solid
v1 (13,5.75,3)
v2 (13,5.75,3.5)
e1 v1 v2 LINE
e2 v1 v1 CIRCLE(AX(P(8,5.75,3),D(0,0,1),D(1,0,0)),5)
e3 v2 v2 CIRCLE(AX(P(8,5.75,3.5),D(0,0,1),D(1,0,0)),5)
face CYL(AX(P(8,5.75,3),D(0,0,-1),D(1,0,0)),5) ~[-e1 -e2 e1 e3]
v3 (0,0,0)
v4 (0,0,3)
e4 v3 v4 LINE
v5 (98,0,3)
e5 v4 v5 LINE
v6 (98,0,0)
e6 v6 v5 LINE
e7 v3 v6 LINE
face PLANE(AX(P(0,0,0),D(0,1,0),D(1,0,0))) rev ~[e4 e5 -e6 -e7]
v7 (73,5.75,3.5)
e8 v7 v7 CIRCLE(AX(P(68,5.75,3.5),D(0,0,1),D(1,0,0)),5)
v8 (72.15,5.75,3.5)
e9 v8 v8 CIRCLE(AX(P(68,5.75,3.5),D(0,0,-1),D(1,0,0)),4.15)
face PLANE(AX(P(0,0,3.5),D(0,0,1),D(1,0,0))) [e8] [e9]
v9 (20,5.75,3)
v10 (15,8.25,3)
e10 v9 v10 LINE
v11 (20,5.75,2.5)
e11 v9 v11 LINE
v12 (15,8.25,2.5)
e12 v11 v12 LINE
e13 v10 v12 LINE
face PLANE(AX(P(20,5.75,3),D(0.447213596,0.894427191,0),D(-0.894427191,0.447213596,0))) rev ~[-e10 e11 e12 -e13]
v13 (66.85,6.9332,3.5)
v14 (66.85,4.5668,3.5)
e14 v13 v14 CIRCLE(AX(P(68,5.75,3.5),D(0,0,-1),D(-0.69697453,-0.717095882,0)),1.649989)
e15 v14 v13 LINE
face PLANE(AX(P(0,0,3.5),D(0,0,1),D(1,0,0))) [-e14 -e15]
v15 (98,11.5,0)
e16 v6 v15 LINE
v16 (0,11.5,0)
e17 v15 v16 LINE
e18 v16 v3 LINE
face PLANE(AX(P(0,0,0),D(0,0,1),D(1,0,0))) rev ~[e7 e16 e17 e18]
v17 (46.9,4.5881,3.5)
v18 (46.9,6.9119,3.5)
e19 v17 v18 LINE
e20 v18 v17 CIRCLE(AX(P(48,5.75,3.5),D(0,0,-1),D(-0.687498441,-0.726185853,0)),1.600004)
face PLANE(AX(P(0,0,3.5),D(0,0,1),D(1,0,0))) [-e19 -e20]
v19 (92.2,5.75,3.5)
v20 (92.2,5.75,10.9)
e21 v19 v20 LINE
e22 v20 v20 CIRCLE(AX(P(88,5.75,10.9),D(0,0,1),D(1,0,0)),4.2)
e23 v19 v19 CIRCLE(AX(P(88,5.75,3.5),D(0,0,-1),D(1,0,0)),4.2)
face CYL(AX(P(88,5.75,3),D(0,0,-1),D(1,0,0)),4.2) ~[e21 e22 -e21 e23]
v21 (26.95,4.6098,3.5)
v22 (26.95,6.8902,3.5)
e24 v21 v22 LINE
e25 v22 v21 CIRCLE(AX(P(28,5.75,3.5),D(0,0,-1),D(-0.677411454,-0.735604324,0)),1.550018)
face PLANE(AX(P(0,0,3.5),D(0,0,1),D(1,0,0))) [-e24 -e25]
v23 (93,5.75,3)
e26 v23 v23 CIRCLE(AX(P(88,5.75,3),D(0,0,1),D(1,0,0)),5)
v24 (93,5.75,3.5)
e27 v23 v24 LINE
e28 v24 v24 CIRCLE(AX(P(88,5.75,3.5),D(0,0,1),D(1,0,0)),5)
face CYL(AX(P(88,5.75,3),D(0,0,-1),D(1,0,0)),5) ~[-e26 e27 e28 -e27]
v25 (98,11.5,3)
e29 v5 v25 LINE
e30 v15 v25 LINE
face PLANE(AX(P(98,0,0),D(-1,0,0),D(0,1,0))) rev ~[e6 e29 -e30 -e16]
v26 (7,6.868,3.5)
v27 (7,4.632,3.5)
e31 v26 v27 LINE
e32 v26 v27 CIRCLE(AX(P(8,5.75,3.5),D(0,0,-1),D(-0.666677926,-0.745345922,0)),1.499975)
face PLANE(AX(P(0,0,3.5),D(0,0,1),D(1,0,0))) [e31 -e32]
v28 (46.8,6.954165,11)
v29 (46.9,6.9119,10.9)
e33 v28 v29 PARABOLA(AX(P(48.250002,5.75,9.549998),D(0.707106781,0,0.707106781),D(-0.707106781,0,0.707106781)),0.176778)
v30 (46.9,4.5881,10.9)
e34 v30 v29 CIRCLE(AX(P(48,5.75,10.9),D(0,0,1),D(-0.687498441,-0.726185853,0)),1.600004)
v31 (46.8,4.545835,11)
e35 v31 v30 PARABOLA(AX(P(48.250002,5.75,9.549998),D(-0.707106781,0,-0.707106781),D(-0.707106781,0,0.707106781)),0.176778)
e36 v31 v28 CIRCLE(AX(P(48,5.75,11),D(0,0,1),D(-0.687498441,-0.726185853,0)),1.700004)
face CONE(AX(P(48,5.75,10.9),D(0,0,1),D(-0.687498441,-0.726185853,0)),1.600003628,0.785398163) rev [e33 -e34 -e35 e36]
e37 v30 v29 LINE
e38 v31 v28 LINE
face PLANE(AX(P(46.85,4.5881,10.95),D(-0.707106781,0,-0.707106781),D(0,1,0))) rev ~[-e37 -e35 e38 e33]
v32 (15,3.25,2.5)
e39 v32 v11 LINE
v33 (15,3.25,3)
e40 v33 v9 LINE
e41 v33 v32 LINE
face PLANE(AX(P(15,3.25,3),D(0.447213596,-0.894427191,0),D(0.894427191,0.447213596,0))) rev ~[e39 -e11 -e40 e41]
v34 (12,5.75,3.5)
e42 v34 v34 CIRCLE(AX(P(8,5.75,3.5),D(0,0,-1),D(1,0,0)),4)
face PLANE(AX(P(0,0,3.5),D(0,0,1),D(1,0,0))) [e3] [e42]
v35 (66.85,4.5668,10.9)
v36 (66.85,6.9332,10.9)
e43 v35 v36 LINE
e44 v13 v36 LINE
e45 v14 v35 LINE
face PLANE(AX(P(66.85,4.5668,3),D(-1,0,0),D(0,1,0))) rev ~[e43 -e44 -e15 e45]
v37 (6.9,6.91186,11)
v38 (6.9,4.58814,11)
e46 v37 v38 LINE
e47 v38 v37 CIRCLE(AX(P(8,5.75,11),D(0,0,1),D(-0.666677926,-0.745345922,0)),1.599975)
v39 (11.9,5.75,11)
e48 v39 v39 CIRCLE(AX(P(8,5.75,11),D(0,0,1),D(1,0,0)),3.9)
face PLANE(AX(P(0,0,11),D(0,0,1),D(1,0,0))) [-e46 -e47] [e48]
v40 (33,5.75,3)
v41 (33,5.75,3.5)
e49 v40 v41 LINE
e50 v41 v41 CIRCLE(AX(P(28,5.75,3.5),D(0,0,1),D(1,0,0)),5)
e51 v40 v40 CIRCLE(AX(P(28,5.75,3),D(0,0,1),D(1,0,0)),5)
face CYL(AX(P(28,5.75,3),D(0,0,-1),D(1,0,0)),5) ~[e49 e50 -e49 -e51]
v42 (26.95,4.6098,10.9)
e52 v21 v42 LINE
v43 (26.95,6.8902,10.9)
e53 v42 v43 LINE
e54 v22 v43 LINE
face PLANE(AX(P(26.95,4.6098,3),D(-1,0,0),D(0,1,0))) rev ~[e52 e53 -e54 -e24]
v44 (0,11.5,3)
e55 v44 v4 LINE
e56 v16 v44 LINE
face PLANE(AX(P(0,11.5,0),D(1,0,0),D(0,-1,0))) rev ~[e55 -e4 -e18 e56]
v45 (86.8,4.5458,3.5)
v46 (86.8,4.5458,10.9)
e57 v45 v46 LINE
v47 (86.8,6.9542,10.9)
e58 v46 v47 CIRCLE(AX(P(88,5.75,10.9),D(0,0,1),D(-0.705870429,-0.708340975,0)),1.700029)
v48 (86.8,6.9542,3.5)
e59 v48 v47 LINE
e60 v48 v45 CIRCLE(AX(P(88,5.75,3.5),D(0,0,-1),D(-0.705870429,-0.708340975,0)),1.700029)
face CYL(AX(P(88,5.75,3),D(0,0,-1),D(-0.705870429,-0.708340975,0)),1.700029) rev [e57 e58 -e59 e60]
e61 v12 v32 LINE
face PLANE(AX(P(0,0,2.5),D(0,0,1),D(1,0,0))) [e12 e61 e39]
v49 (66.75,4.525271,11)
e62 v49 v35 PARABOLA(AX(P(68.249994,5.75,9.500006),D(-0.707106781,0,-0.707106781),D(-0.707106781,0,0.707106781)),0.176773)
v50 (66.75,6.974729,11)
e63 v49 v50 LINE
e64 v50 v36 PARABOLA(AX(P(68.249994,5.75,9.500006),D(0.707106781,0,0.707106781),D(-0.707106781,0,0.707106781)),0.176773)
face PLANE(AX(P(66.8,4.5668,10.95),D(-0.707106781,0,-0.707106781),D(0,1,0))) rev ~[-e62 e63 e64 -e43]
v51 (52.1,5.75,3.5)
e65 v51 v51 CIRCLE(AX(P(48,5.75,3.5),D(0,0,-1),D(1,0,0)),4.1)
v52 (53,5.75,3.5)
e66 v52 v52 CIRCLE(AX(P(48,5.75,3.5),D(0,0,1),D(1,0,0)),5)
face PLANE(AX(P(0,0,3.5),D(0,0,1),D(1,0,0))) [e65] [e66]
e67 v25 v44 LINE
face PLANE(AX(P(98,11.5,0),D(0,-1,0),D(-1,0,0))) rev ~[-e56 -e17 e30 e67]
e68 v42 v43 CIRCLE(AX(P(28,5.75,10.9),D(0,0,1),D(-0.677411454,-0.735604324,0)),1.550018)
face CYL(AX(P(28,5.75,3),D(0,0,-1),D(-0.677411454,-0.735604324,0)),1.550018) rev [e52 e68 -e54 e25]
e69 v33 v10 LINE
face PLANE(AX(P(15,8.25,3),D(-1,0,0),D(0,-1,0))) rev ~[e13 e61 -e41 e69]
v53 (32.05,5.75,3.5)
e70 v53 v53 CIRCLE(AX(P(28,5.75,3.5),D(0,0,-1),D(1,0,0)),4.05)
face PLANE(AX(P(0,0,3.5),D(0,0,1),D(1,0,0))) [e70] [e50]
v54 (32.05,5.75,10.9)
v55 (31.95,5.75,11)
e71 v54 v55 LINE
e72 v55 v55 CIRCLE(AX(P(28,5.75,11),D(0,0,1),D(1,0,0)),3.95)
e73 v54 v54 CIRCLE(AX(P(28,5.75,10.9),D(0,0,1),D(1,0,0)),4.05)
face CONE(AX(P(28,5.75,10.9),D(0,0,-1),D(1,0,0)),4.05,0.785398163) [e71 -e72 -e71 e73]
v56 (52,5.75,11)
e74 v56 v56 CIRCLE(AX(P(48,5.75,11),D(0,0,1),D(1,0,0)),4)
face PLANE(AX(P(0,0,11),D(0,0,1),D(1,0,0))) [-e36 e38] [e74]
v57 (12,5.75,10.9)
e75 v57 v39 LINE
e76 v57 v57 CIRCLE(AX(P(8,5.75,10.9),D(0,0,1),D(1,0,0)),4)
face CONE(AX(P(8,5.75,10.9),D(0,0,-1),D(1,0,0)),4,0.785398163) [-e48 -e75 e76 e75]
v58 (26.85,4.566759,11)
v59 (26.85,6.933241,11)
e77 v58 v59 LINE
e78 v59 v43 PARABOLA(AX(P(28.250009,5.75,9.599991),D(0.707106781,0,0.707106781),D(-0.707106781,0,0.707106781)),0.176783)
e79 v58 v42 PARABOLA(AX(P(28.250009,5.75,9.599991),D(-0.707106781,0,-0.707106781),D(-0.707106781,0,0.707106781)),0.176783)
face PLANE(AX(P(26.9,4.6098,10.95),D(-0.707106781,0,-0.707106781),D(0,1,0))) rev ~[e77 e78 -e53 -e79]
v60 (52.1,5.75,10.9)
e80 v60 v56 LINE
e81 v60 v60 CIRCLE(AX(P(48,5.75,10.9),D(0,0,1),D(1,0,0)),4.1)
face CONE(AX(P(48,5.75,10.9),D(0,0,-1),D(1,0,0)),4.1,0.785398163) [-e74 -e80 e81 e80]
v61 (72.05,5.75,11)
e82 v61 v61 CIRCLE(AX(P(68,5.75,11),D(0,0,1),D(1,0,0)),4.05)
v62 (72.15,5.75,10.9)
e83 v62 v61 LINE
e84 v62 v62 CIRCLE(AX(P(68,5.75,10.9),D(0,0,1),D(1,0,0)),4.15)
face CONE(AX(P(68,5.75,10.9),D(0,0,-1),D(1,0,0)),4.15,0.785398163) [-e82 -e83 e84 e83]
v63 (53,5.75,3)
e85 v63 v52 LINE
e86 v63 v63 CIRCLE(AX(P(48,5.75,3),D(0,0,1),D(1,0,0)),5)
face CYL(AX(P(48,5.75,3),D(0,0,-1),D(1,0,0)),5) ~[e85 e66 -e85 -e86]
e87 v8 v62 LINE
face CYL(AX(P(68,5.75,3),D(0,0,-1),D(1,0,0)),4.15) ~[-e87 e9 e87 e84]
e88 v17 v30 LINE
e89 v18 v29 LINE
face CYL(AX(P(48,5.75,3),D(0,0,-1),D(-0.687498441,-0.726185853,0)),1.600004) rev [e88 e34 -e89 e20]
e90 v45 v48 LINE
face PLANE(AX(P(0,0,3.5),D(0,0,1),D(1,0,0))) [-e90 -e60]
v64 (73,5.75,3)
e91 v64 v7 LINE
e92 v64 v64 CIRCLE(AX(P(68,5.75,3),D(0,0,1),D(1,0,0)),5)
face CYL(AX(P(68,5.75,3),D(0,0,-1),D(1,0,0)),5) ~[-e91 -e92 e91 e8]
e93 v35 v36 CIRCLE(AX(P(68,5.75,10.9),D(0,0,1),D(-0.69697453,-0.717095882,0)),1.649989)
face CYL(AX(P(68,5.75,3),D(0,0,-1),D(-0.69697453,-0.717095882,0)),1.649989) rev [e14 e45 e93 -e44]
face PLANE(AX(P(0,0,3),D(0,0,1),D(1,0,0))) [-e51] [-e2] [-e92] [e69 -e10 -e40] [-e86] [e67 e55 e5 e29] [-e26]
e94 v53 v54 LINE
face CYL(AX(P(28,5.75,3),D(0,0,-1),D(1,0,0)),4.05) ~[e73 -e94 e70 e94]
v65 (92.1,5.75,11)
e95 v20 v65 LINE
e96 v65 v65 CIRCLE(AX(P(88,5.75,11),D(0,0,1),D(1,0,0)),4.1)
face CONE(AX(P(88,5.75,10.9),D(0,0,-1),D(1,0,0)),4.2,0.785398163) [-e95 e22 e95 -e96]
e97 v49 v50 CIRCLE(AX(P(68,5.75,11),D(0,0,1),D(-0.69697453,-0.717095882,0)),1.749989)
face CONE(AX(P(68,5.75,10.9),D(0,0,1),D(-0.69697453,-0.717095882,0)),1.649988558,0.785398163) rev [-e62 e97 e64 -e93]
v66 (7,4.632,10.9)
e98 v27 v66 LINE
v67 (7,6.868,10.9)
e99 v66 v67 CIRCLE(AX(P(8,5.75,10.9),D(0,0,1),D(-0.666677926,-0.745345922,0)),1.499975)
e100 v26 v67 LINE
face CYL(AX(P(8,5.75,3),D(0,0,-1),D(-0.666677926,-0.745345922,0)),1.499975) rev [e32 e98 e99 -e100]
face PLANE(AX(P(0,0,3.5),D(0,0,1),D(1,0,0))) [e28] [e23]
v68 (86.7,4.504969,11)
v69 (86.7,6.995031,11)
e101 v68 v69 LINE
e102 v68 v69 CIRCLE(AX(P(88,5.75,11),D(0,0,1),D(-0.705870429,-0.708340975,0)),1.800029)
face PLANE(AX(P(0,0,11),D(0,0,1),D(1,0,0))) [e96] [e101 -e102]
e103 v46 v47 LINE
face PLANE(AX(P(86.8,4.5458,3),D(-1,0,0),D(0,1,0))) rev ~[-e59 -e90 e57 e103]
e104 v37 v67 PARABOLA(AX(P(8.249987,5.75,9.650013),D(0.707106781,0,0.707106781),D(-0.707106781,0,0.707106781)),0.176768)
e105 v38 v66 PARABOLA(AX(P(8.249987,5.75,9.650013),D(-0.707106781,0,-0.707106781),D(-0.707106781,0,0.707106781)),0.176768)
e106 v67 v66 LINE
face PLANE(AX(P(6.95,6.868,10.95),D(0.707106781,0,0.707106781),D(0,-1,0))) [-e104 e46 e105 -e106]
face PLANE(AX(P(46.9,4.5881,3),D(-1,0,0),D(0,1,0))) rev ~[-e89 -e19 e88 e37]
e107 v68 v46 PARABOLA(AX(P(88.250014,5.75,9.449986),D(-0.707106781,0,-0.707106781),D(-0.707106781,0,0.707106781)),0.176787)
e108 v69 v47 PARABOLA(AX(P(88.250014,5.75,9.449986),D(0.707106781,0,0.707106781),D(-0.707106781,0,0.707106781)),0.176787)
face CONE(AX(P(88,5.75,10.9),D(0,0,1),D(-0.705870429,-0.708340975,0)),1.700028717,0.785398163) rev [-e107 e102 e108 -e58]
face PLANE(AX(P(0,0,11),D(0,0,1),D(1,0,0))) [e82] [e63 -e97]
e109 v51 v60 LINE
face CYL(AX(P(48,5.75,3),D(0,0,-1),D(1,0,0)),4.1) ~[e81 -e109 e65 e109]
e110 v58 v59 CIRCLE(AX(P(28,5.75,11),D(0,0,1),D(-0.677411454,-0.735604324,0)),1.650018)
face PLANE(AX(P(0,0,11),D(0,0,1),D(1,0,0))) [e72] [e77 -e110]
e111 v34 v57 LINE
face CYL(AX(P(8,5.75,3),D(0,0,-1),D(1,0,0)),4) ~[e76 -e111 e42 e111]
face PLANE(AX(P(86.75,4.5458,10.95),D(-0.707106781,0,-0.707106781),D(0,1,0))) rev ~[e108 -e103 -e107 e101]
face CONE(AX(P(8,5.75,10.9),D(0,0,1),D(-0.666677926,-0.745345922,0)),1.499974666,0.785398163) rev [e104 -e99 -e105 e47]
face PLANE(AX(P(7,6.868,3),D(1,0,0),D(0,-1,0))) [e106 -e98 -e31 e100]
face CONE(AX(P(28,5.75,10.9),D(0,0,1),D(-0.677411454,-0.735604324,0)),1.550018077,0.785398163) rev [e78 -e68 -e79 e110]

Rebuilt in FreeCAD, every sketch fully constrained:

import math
import FreeCAD as App
import Part
import Sketcher
from FreeCAD import Vector


def edges_at(feature, points):
    """Names of the edges that pass closest to the given points."""
    edges = feature.Shape.Edges
    near = lambda p: min(range(len(edges)), key=lambda i: edges[i].distToShape(Part.Vertex(*p))[0])
    return sorted({f"Edge{near(p) + 1}" for p in points})


def add_polygon(sketch, points):
    """Adds a closed chain of lines whose ends are joined by coincident constraints."""
    first, n = sketch.GeometryCount, len(points)
    for a, b in zip(points, points[1:] + points[:1]):
        sketch.addGeometry(Part.LineSegment(App.Vector(*a, 0), App.Vector(*b, 0)), False)
    for i in range(n):
        sketch.addConstraint(Sketcher.Constraint("Coincident", first + i, 2, first + (i + 1) % n, 1))

doc = App.newDocument("Part")
body = doc.addObject("PartDesign::Body", "Body")

sketch1 = doc.addObject("Sketcher::SketchObject", "Sketch")
body.addObject(sketch1)
sketch1.AttachmentSupport = (doc.XY_Plane, [""])
sketch1.MapMode = "FlatFace"
add_polygon(sketch1, [(0, 12), (0, 0), (98, 0), (98, 12)])
sketch1.addConstraint([
    Sketcher.Constraint("Vertical", 0),
    Sketcher.Constraint("Horizontal", 1),
    Sketcher.Constraint("Vertical", 2),
    Sketcher.Constraint("Horizontal", 3),
    Sketcher.Constraint("Coincident", 0, 2, -1, 1),
    Sketcher.Constraint("DistanceX", 1, 1, 1, 2, 98.0),
    Sketcher.Constraint("DistanceY", 0, 2, 0, 1, 11.5),
])
pad1 = doc.addObject("PartDesign::Pad", "Pad")
body.addObject(pad1)
pad1.Profile = sketch1
pad1.Length = 3

sketch2 = doc.addObject("Sketcher::SketchObject", "Sketch001")
body.addObject(sketch2)
sketch2.AttachmentSupport = (doc.XY_Plane, [""])
sketch2.MapMode = "FlatFace"
sketch2.AttachmentOffset = App.Placement(Vector(0, 0, 3), App.Rotation())
sketch2.addGeometry([
    Part.Circle(Vector(8, 5.8, 0), Vector(0, 0, 1), 4),
    Part.ArcOfCircle(Part.Circle(Vector(8, 5.8, 0), Vector(0, 0, 1), 1.5), math.radians(-132), math.radians(132)),
    Part.LineSegment(Vector(7, 4.6, 0), Vector(7, 6.9, 0)),
    Part.Circle(Vector(28, 5.8, 0), Vector(0, 0, 1), 4),
    Part.ArcOfCircle(Part.Circle(Vector(28, 5.8, 0), Vector(0, 0, 1), 1.6), math.radians(-133), math.radians(133)),
    Part.LineSegment(Vector(26.9, 4.6, 0), Vector(26.9, 6.9, 0)),
    Part.Circle(Vector(48, 5.8, 0), Vector(0, 0, 1), 4.1),
    Part.ArcOfCircle(Part.Circle(Vector(48, 5.8, 0), Vector(0, 0, 1), 1.6), math.radians(-133), math.radians(133)),
    Part.LineSegment(Vector(46.9, 4.6, 0), Vector(46.9, 6.9, 0)),
    Part.Circle(Vector(68, 5.8, 0), Vector(0, 0, 1), 4.2),
    Part.ArcOfCircle(Part.Circle(Vector(68, 5.8, 0), Vector(0, 0, 1), 1.6), math.radians(-134), math.radians(134)),
    Part.LineSegment(Vector(66.8, 4.6, 0), Vector(66.8, 6.9, 0)),
    Part.Circle(Vector(88, 5.8, 0), Vector(0, 0, 1), 4.2),
    Part.ArcOfCircle(Part.Circle(Vector(88, 5.8, 0), Vector(0, 0, 1), 1.7), math.radians(-135), math.radians(135)),
    Part.LineSegment(Vector(86.8, 4.5, 0), Vector(86.8, 7, 0)),
], False)
sketch2.addConstraint([
    Sketcher.Constraint("Coincident", 1, 1, 2, 1),
    Sketcher.Constraint("Coincident", 2, 2, 1, 2),
    Sketcher.Constraint("Coincident", 4, 1, 5, 1),
    Sketcher.Constraint("Coincident", 5, 2, 4, 2),
    Sketcher.Constraint("Coincident", 7, 1, 8, 1),
    Sketcher.Constraint("Coincident", 8, 2, 7, 2),
    Sketcher.Constraint("Coincident", 10, 1, 11, 1),
    Sketcher.Constraint("Coincident", 11, 2, 10, 2),
    Sketcher.Constraint("Coincident", 13, 1, 14, 1),
    Sketcher.Constraint("Coincident", 14, 2, 13, 2),
    Sketcher.Constraint("Vertical", 2),
    Sketcher.Constraint("Vertical", 5),
    Sketcher.Constraint("Vertical", 8),
    Sketcher.Constraint("Vertical", 11),
    Sketcher.Constraint("Vertical", 14),
    Sketcher.Constraint("Coincident", 1, 3, 0, 3),
    Sketcher.Constraint("Coincident", 4, 3, 3, 3),
    Sketcher.Constraint("Coincident", 7, 3, 6, 3),
    Sketcher.Constraint("Coincident", 10, 3, 9, 3),
    Sketcher.Constraint("Coincident", 13, 3, 12, 3),
    Sketcher.Constraint("Horizontal", 1, 3, 3, 3),
    Sketcher.Constraint("Horizontal", 4, 3, 6, 3),
    Sketcher.Constraint("Horizontal", 7, 3, 9, 3),
    Sketcher.Constraint("Horizontal", 10, 3, 12, 3),
    Sketcher.Constraint("Diameter", 0, 8.0),
    Sketcher.Constraint("Diameter", 3, 8.1),
    Sketcher.Constraint("Diameter", 6, 8.2),
    Sketcher.Constraint("Diameter", 9, 8.3),
    Sketcher.Constraint("Diameter", 12, 8.4),
    Sketcher.Constraint("Radius", 1, 1.5),
    Sketcher.Constraint("Radius", 7, 1.6),
    Sketcher.Constraint("Radius", 13, 1.7),
    Sketcher.Constraint("Radius", 4, 1.55),
    Sketcher.Constraint("Radius", 10, 1.65),
    Sketcher.Constraint("DistanceX", -1, 1, 0, 3, 8.0),
    Sketcher.Constraint("DistanceX", -1, 1, 3, 3, 28.0),
    Sketcher.Constraint("DistanceX", -1, 1, 6, 3, 48.0),
    Sketcher.Constraint("DistanceX", -1, 1, 9, 3, 68.0),
    Sketcher.Constraint("DistanceX", -1, 1, 12, 3, 88.0),
    Sketcher.Constraint("DistanceX", -1, 1, 1, 1, 7.0),
    Sketcher.Constraint("DistanceX", -1, 1, 7, 1, 46.9),
    Sketcher.Constraint("DistanceX", -1, 1, 13, 1, 86.8),
    Sketcher.Constraint("DistanceY", -1, 1, 0, 3, 5.75),
    Sketcher.Constraint("DistanceX", -1, 1, 4, 1, 26.95),
    Sketcher.Constraint("DistanceX", -1, 1, 10, 1, 66.85),
])
pad2 = doc.addObject("PartDesign::Pad", "Pad001")
body.addObject(pad2)
pad2.Profile = sketch2
pad2.Length = 8

sketch3 = doc.addObject("Sketcher::SketchObject", "Sketch002")
body.addObject(sketch3)
sketch3.AttachmentSupport = (doc.XY_Plane, [""])
sketch3.MapMode = "FlatFace"
sketch3.AttachmentOffset = App.Placement(Vector(0, 0, 3), App.Rotation())
sketch3.addGeometry([
    Part.Circle(Vector(8, 6, 0), Vector(0, 0, 1), 5),
    Part.Circle(Vector(28, 6, 0), Vector(0, 0, 1), 5),
    Part.Circle(Vector(48, 6, 0), Vector(0, 0, 1), 5),
    Part.Circle(Vector(68, 6, 0), Vector(0, 0, 1), 5),
    Part.Circle(Vector(88, 6, 0), Vector(0, 0, 1), 5),
], False)
sketch3.addConstraint([
    Sketcher.Constraint("Equal", 0, 1),
    Sketcher.Constraint("Equal", 1, 2),
    Sketcher.Constraint("Equal", 2, 3),
    Sketcher.Constraint("Equal", 3, 4),
    Sketcher.Constraint("Horizontal", 0, 3, 1, 3),
    Sketcher.Constraint("Horizontal", 1, 3, 2, 3),
    Sketcher.Constraint("Horizontal", 2, 3, 3, 3),
    Sketcher.Constraint("Horizontal", 3, 3, 4, 3),
    Sketcher.Constraint("Diameter", 0, 10.0),
    Sketcher.Constraint("DistanceX", 0, 3, 1, 3, 20.0),
    Sketcher.Constraint("DistanceX", 1, 3, 2, 3, 20.0),
    Sketcher.Constraint("DistanceX", 2, 3, 3, 3, 20.0),
    Sketcher.Constraint("DistanceX", 3, 3, 4, 3, 20.0),
    Sketcher.Constraint("DistanceX", -1, 1, 0, 3, 8.0),
    Sketcher.Constraint("DistanceY", -1, 1, 0, 3, 5.75),
])
pad3 = doc.addObject("PartDesign::Pad", "Pad002")
body.addObject(pad3)
pad3.Profile = sketch3
pad3.Length = 0.5
doc.recompute()

chamfer = doc.addObject("PartDesign::Chamfer", "Chamfer")
body.addObject(chamfer)
chamfer.Base = (pad3, edges_at(pad3, [
    (4, 5.75, 11),
    (9.5, 5.75, 11),
    (7, 5.75, 11),
    (23.95, 5.75, 11),
    (29.55, 5.75, 11),
    (26.95, 5.75, 11),
    (43.9, 5.75, 11),
    (49.6, 5.75, 11),
    (46.9, 5.75, 11),
    (69.65, 5.75, 11),
    (66.85, 5.75, 11),
    (63.85, 5.75, 11),
    (83.8, 5.75, 11),
    (89.7, 5.75, 11),
    (86.8, 5.75, 11),
]))
chamfer.Size = 0.1

sketch4 = doc.addObject("Sketcher::SketchObject", "Sketch003")
body.addObject(sketch4)
sketch4.AttachmentSupport = (doc.XY_Plane, [""])
sketch4.MapMode = "FlatFace"
sketch4.AttachmentOffset = App.Placement(Vector(0, 0, 3), App.Rotation())
add_polygon(sketch4, [(20, 6), (15, 8), (15, 3)])
sketch4.addConstraint([
    Sketcher.Constraint("Vertical", 1),
    Sketcher.Constraint("Equal", 0, 2),
    Sketcher.Constraint("DistanceY", 1, 2, 1, 1, 5.0),
    Sketcher.Constraint("DistanceX", -1, 1, 0, 2, 15.0),
    Sketcher.Constraint("DistanceX", 0, 2, 2, 2, 5.0),
    Sketcher.Constraint("DistanceY", -1, 1, 0, 2, 8.25),
])
pocket1 = doc.addObject("PartDesign::Pocket", "Pocket")
body.addObject(pocket1)
pocket1.Profile = sketch4
pocket1.Length = 0.5

doc.recompute()
